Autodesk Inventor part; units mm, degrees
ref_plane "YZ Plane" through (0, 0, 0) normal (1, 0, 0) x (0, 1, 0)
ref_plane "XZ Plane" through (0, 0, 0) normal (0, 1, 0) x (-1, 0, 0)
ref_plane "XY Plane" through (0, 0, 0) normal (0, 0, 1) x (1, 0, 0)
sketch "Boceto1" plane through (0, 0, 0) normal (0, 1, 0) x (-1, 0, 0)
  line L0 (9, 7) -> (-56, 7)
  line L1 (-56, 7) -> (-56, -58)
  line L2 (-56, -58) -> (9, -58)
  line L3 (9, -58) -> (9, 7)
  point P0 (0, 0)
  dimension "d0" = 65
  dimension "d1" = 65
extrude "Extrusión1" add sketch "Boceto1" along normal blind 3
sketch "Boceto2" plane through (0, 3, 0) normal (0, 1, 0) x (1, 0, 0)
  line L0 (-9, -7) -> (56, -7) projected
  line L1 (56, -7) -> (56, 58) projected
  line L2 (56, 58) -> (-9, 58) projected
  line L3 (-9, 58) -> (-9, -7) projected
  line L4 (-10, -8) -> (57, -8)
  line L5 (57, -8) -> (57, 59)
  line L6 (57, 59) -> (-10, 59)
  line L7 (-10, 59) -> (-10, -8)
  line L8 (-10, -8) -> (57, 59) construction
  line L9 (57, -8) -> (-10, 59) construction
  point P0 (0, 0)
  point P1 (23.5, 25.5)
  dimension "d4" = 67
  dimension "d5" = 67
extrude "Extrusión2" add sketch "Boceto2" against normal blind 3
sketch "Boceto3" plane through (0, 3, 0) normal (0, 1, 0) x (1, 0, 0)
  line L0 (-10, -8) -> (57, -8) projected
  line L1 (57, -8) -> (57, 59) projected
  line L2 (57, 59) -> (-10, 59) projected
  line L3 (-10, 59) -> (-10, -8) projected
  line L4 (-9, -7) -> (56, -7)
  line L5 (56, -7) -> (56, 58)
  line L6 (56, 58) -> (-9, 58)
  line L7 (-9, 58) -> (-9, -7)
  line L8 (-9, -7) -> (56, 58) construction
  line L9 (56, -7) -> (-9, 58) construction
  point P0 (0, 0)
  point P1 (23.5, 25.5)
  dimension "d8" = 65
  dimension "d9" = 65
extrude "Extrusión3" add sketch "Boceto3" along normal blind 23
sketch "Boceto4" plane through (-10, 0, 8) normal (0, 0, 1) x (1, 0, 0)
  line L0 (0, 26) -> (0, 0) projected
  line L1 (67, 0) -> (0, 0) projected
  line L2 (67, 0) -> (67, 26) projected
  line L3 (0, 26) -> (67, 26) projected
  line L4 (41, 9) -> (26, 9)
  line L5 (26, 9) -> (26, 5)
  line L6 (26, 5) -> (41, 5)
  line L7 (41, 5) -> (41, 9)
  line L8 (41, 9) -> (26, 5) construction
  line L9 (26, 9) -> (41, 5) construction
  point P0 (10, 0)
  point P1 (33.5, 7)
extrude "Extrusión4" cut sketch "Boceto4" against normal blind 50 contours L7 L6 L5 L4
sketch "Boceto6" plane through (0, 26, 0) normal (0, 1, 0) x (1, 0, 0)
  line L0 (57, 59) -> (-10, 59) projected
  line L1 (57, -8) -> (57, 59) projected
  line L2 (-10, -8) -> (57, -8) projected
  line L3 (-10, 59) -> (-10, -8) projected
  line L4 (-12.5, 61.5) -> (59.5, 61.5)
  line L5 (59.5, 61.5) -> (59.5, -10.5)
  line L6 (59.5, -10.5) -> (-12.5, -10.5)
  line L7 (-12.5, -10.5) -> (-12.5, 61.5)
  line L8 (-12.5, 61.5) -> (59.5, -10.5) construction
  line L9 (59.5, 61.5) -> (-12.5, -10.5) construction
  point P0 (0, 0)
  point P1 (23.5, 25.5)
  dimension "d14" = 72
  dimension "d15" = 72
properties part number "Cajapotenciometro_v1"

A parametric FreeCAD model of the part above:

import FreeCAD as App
import Part
import Sketcher
from FreeCAD import Vector
Q = App.Units.Quantity


def add_polygon(sketch, points):
    """Adds a closed chain of lines whose ends are joined by coincident constraints."""
    first, n = sketch.GeometryCount, len(points)
    for a, b in zip(points, points[1:] + points[:1]):
        sketch.addGeometry(Part.LineSegment(App.Vector(*a, 0), App.Vector(*b, 0)), False)
    for i in range(n):
        sketch.addConstraint(Sketcher.Constraint("Coincident", first + i, 2, first + (i + 1) % n, 1))

doc = App.newDocument("Part")
params = doc.addObject("Spreadsheet::Sheet", "Params")
for row, (alias, value) in enumerate([
    ("sketch1_width", "65 mm"),
    ("pad1_length", "3 mm"),
    ("sketch2_width", "67 mm"),
    ("sketch2_width2", "65 mm"),
    ("pad2_length", "3 mm"),
    ("sketch3_width", "65 mm"),
    ("sketch3_width2", "67 mm"),
    ("pad3_length", "23 mm"),
    ("sketch4_width", "15 mm"),
    ("sketch4_height", "4 mm"),
    ("pocket1_length", "50 mm"),
], start=1):
    params.set(f"A{row}", alias)
    params.set(f"B{row}", "=" + value)
    params.setAlias(f"B{row}", alias)

body = doc.addObject("PartDesign::Body", "Body")

sketch1 = doc.addObject("Sketcher::SketchObject", "Sketch")
body.addObject(sketch1)
sketch1.AttachmentSupport = (doc.XZ_Plane, [""])
sketch1.MapMode = "FlatFace"
add_polygon(sketch1, [(-9, -58), (-9, 7), (56, 7), (56, -58)])
sketch1.addConstraint(Sketcher.Constraint("Vertical", 0))
sketch1.addConstraint(Sketcher.Constraint("Horizontal", 1))
sketch1.addConstraint(Sketcher.Constraint("Vertical", 2))
sketch1.addConstraint(Sketcher.Constraint("Horizontal", 3))
sketch1.addConstraint(Sketcher.Constraint("Equal", 3, 0))
sketch1.addConstraint(Sketcher.Constraint("DistanceX", 1, 1, 1, 2, Q("65 mm")))
sketch1.addConstraint(Sketcher.Constraint("DistanceX", 0, 2, -1, 1, Q("9 mm")))
sketch1.addConstraint(Sketcher.Constraint("DistanceY", -1, 1, 0, 2, Q("7 mm")))
sketch1.setExpression("Constraints[9]", "Params.sketch1_width")
pad1 = doc.addObject("PartDesign::Pad", "Pad")
body.addObject(pad1)
pad1.Profile = sketch1
pad1.setExpression("Length", "Params.pad1_length")
pad1.Reversed = True

sketch2 = doc.addObject("Sketcher::SketchObject", "Sketch001")
body.addObject(sketch2)
sketch2.AttachmentSupport = (doc.XZ_Plane, [""])
sketch2.MapMode = "FlatFace"
sketch2.AttachmentOffset = App.Placement(Vector(0, 0, -3), App.Rotation())
add_polygon(sketch2, [(-10, -59), (-10, 8), (57, 8), (57, -59)])
add_polygon(sketch2, [(56, 7), (-9, 7), (-9, -58), (56, -58)])
sketch2.addConstraint(Sketcher.Constraint("Vertical", 0))
sketch2.addConstraint(Sketcher.Constraint("Horizontal", 1))
sketch2.addConstraint(Sketcher.Constraint("Vertical", 2))
sketch2.addConstraint(Sketcher.Constraint("Horizontal", 3))
sketch2.addConstraint(Sketcher.Constraint("Horizontal", 4))
sketch2.addConstraint(Sketcher.Constraint("Vertical", 5))
sketch2.addConstraint(Sketcher.Constraint("Horizontal", 6))
sketch2.addConstraint(Sketcher.Constraint("Vertical", 7))
sketch2.addConstraint(Sketcher.Constraint("Equal", 3, 0))
sketch2.addConstraint(Sketcher.Constraint("Equal", 6, 5))
sketch2.addConstraint(Sketcher.Constraint("DistanceX", 1, 1, 1, 2, Q("67 mm")))
sketch2.addConstraint(Sketcher.Constraint("DistanceX", 4, 2, 4, 1, Q("65 mm")))
sketch2.addConstraint(Sketcher.Constraint("DistanceX", 0, 2, -1, 1, Q("10 mm")))
sketch2.addConstraint(Sketcher.Constraint("DistanceY", -1, 1, 0, 2, Q("8 mm")))
sketch2.addConstraint(Sketcher.Constraint("DistanceX", 4, 2, -1, 1, Q("9 mm")))
sketch2.addConstraint(Sketcher.Constraint("DistanceY", -1, 1, 4, 2, Q("7 mm")))
sketch2.setExpression("Constraints[18]", "Params.sketch2_width")
sketch2.setExpression("Constraints[19]", "Params.sketch2_width2")
pad2 = doc.addObject("PartDesign::Pad", "Pad001")
body.addObject(pad2)
pad2.Profile = sketch2
pad2.setExpression("Length", "Params.pad2_length")

sketch3 = doc.addObject("Sketcher::SketchObject", "Sketch002")
body.addObject(sketch3)
sketch3.AttachmentSupport = (doc.XZ_Plane, [""])
sketch3.MapMode = "FlatFace"
sketch3.AttachmentOffset = App.Placement(Vector(0, 0, -3), App.Rotation())
add_polygon(sketch3, [(-10, -59), (-10, 8), (57, 8), (57, -59)])
add_polygon(sketch3, [(56, 7), (-9, 7), (-9, -58), (56, -58)])
sketch3.addConstraint(Sketcher.Constraint("Vertical", 0))
sketch3.addConstraint(Sketcher.Constraint("Horizontal", 1))
sketch3.addConstraint(Sketcher.Constraint("Vertical", 2))
sketch3.addConstraint(Sketcher.Constraint("Horizontal", 3))
sketch3.addConstraint(Sketcher.Constraint("Horizontal", 4))
sketch3.addConstraint(Sketcher.Constraint("Vertical", 5))
sketch3.addConstraint(Sketcher.Constraint("Horizontal", 6))
sketch3.addConstraint(Sketcher.Constraint("Vertical", 7))
sketch3.addConstraint(Sketcher.Constraint("Equal", 3, 0))
sketch3.addConstraint(Sketcher.Constraint("Equal", 6, 5))
sketch3.addConstraint(Sketcher.Constraint("DistanceX", 4, 2, 4, 1, Q("65 mm")))
sketch3.addConstraint(Sketcher.Constraint("DistanceX", 1, 1, 1, 2, Q("67 mm")))
sketch3.addConstraint(Sketcher.Constraint("DistanceX", 0, 2, -1, 1, Q("10 mm")))
sketch3.addConstraint(Sketcher.Constraint("DistanceY", -1, 1, 0, 2, Q("8 mm")))
sketch3.addConstraint(Sketcher.Constraint("DistanceX", 4, 2, -1, 1, Q("9 mm")))
sketch3.addConstraint(Sketcher.Constraint("DistanceY", -1, 1, 4, 2, Q("7 mm")))
sketch3.setExpression("Constraints[18]", "Params.sketch3_width")
sketch3.setExpression("Constraints[19]", "Params.sketch3_width2")
pad3 = doc.addObject("PartDesign::Pad", "Pad002")
body.addObject(pad3)
pad3.Profile = sketch3
pad3.setExpression("Length", "Params.pad3_length")
pad3.Reversed = True

sketch4 = doc.addObject("Sketcher::SketchObject", "Sketch003")
body.addObject(sketch4)
sketch4.AttachmentSupport = (doc.XY_Plane, [""])
sketch4.MapMode = "FlatFace"
sketch4.AttachmentOffset = App.Placement(Vector(0, 0, 8), App.Rotation())
add_polygon(sketch4, [(31, 5), (31, 9), (16, 9), (16, 5)])
sketch4.addConstraint(Sketcher.Constraint("Vertical", 0))
sketch4.addConstraint(Sketcher.Constraint("Horizontal", 1))
sketch4.addConstraint(Sketcher.Constraint("Vertical", 2))
sketch4.addConstraint(Sketcher.Constraint("Horizontal", 3))
sketch4.addConstraint(Sketcher.Constraint("DistanceX", 1, 2, 1, 1, Q("15 mm")))
sketch4.addConstraint(Sketcher.Constraint("DistanceY", 0, 1, 0, 2, Q("4 mm")))
sketch4.addConstraint(Sketcher.Constraint("DistanceX", -1, 1, 0, 2, Q("31 mm")))
sketch4.addConstraint(Sketcher.Constraint("DistanceY", -1, 1, 0, 2, Q("9 mm")))
sketch4.setExpression("Constraints[8]", "Params.sketch4_width")
sketch4.setExpression("Constraints[9]", "Params.sketch4_height")
pocket1 = doc.addObject("PartDesign::Pocket", "Pocket")
body.addObject(pocket1)
pocket1.Profile = sketch4
pocket1.setExpression("Length", "Params.pocket1_length")

doc.recompute()
